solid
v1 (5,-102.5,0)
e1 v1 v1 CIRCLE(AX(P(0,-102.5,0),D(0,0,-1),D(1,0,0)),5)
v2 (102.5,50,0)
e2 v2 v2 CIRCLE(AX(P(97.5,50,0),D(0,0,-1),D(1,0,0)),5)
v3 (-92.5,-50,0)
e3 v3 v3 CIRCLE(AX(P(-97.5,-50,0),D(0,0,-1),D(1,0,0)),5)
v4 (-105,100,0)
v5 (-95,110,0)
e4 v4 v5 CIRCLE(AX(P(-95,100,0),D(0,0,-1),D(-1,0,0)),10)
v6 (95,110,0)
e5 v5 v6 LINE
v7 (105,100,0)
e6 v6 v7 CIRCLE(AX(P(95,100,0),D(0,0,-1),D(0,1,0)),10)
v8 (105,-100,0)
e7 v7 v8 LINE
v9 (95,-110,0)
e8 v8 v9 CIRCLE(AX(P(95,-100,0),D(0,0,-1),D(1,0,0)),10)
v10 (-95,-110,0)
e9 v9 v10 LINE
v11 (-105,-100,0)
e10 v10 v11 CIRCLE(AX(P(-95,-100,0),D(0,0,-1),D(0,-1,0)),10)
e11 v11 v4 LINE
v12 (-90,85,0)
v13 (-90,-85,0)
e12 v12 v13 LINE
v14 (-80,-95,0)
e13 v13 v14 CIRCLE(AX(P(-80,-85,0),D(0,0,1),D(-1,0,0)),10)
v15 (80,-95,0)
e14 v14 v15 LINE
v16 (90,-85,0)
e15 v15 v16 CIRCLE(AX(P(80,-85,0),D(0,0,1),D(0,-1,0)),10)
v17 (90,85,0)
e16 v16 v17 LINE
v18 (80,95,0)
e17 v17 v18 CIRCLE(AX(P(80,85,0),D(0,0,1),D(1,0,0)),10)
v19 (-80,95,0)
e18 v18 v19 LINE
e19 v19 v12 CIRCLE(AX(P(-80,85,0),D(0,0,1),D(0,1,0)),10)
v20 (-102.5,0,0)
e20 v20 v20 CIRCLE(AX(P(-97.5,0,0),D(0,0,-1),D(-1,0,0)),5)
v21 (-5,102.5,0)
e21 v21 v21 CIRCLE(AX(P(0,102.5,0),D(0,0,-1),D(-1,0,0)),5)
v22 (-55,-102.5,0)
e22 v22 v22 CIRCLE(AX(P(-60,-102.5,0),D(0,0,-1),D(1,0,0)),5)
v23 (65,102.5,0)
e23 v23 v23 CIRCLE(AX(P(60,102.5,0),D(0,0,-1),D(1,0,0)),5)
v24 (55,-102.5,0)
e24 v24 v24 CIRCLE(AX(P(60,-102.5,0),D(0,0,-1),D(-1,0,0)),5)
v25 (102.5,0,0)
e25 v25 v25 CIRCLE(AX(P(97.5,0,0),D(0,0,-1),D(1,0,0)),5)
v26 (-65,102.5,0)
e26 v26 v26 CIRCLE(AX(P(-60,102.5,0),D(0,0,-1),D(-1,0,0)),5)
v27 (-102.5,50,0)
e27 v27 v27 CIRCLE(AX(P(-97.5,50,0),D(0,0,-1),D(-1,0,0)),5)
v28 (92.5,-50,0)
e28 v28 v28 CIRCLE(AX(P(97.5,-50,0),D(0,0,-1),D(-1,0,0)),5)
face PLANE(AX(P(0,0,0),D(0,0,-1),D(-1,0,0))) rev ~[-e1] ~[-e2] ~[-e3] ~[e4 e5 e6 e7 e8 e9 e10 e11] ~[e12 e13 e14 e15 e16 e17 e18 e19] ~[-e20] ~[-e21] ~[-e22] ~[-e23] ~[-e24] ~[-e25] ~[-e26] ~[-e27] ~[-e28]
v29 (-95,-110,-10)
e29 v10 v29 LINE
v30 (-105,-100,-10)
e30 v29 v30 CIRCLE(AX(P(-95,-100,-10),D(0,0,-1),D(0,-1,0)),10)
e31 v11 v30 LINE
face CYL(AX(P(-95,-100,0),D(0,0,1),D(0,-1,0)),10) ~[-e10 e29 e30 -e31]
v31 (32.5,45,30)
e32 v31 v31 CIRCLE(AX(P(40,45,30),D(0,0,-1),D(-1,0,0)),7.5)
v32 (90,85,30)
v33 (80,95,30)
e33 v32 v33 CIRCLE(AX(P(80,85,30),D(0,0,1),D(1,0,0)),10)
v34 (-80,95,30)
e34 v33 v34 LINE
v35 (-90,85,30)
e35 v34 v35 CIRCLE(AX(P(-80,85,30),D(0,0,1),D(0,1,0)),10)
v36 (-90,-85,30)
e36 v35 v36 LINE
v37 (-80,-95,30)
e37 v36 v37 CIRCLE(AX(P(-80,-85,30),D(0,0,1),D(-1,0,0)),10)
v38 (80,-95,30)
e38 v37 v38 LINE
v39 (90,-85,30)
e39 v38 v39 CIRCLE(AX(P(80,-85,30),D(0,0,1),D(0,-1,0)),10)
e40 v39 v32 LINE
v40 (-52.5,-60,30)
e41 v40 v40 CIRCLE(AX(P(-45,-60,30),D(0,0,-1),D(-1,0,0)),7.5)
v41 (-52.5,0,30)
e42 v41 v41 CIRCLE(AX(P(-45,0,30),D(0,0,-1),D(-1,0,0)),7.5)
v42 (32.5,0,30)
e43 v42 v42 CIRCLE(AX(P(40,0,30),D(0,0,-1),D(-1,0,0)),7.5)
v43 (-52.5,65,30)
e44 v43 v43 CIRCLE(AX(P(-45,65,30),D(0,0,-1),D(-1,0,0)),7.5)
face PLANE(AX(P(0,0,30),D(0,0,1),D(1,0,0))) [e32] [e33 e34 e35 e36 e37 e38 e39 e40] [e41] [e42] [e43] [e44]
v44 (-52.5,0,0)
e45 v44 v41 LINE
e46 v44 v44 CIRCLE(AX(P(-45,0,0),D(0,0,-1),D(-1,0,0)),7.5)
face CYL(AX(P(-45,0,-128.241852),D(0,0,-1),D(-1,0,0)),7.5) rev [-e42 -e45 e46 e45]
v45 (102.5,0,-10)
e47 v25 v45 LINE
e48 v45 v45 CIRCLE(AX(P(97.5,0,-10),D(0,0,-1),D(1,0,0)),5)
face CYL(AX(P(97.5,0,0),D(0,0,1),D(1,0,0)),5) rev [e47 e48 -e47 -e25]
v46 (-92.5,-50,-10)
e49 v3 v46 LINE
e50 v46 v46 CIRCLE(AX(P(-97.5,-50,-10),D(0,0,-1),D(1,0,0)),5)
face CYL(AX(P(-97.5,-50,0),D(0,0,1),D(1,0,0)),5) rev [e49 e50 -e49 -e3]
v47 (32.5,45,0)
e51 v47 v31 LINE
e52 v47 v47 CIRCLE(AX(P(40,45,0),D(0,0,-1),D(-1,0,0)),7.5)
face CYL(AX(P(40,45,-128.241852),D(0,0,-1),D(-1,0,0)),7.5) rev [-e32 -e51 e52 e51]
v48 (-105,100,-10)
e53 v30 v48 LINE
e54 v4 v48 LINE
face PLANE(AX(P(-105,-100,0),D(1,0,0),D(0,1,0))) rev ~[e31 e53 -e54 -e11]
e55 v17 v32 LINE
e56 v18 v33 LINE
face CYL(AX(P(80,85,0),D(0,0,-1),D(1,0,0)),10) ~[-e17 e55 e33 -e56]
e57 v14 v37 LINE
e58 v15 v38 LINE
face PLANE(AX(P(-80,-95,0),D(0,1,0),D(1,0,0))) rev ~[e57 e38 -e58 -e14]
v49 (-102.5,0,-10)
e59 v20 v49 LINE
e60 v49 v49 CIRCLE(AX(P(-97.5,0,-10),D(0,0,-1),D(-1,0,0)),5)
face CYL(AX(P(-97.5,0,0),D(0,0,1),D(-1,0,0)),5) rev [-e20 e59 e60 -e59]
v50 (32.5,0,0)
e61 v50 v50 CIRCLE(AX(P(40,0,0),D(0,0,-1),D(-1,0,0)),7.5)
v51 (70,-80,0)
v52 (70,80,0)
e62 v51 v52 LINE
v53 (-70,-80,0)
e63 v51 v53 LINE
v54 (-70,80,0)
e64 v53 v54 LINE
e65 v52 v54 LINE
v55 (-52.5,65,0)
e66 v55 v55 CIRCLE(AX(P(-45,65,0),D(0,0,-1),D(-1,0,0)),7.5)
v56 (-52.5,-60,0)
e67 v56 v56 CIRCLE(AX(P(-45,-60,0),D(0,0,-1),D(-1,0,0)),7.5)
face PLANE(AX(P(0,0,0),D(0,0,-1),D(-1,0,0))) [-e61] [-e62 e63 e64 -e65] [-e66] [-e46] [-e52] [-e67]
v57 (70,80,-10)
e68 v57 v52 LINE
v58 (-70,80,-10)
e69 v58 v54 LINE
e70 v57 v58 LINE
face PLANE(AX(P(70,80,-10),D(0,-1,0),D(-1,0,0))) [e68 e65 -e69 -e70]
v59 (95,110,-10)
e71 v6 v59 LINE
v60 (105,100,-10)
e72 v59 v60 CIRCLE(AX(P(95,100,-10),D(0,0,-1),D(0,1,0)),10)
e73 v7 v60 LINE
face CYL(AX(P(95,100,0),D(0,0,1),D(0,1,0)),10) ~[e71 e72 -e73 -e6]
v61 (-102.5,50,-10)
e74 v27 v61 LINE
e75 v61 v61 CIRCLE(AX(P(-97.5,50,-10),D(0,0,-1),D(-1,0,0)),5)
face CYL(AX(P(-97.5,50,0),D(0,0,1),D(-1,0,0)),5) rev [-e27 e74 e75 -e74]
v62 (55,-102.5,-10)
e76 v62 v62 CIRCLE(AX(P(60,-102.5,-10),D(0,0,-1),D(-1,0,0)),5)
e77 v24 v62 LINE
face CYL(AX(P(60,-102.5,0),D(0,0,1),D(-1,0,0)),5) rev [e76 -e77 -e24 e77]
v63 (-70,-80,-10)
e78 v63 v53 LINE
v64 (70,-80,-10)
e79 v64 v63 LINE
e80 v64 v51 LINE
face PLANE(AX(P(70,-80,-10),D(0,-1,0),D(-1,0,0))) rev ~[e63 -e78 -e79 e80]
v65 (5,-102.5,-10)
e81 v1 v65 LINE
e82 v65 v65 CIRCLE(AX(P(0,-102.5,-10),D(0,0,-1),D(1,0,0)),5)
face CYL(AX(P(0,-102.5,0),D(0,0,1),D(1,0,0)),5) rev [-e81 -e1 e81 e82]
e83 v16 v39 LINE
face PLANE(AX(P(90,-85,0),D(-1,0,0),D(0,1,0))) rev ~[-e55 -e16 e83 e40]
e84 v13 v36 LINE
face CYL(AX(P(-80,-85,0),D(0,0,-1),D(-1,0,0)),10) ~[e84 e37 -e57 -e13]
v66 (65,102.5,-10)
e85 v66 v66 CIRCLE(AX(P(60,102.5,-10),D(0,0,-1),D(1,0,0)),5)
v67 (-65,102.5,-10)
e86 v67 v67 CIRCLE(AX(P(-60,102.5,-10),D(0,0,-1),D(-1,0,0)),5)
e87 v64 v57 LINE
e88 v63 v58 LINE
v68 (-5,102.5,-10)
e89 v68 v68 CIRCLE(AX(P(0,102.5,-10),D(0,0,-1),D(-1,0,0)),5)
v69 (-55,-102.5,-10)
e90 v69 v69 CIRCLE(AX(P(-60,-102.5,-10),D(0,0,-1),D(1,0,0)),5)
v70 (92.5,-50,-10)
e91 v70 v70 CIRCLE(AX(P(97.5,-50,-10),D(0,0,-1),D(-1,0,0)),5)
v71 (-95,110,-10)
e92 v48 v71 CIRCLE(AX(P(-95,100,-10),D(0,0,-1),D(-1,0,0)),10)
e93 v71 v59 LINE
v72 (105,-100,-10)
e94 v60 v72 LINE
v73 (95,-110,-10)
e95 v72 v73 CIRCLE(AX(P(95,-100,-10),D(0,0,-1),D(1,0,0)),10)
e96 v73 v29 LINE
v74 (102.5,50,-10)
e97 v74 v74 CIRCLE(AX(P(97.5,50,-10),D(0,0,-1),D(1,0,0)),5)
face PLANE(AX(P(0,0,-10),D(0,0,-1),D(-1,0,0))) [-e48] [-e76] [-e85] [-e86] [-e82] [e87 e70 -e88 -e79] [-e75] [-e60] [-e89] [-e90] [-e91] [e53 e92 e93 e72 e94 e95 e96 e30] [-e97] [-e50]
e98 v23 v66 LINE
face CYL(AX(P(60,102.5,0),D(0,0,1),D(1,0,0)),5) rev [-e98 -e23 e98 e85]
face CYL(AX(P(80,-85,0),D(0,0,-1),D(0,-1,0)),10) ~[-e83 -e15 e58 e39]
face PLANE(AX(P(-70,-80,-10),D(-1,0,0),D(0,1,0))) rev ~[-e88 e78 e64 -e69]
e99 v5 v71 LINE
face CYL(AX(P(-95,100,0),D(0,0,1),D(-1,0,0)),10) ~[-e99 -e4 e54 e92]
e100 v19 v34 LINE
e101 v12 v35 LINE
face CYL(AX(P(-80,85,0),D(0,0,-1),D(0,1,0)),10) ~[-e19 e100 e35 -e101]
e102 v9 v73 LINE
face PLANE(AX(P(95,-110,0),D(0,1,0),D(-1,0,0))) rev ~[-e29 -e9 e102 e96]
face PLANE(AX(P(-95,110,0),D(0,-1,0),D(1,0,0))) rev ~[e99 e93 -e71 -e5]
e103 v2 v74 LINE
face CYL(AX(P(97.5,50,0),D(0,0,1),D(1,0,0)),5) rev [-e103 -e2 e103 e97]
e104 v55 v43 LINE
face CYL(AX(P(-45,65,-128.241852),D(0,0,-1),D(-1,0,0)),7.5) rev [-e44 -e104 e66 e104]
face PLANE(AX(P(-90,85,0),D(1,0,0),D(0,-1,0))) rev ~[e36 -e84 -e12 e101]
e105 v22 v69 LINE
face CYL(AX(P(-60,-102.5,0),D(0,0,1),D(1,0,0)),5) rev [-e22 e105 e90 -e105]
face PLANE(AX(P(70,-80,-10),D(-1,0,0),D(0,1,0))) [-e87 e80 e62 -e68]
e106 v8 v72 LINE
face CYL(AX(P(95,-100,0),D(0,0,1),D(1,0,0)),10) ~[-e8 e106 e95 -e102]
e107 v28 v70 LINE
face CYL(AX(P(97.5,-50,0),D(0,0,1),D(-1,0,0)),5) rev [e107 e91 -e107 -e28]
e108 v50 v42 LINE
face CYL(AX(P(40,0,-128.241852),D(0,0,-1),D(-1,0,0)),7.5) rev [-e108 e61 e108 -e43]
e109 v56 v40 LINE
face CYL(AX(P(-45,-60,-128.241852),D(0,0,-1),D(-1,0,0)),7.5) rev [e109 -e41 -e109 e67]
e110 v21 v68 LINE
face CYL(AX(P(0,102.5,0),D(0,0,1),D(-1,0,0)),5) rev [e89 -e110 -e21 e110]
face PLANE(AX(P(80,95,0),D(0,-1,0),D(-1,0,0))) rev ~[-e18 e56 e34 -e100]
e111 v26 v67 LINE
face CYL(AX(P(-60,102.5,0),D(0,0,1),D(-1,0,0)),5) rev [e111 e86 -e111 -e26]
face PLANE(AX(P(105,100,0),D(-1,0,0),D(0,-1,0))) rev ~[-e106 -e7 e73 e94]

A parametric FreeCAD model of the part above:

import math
import FreeCAD as App
import Part
import Sketcher
from FreeCAD import Vector
Q = App.Units.Quantity

doc = App.newDocument("Part")
params = doc.addObject("Spreadsheet::Sheet", "Params")
for row, (alias, value) in enumerate([
    ("sketch1_radius", "10 mm"),
    ("sketch1_width", "160 mm"),
    ("sketch1_height", "170 mm"),
    ("pad1_length", "30 mm"),
    ("sketch2_diameter", "10 mm"),
    ("sketch2_radius", "10 mm"),
    ("sketch2_width", "190 mm"),
    ("sketch2_height", "200 mm"),
    ("pad2_length", "10 mm"),
    ("sketch3_width", "140 mm"),
    ("sketch3_height", "160 mm"),
    ("pocket1_length", "10 mm"),
    ("sketch4_diameter", "15 mm"),
], start=1):
    params.set(f"A{row}", alias)
    params.set(f"B{row}", "=" + value)
    params.setAlias(f"B{row}", alias)

body = doc.addObject("PartDesign::Body", "Body")

# Sketch on XY plane
sketch1 = body.newObject("Sketcher::SketchObject", "Sketch")
sketch1.AttachmentSupport = (doc.getObject("XY_Plane"), [""])
sketch1.MapMode = "FlatFace"
sketch1.addGeometry([
    Part.LineSegment(Vector(-80, -95, 0), Vector(80, -95, 0)),  # 0
    Part.ArcOfCircle(Part.Circle(Vector(80, -85, 0), Vector(0, 0, 1), 10), math.radians(-90), math.radians(0)),  # 1
    Part.LineSegment(Vector(90, -85, 0), Vector(90, 85, 0)),  # 2
    Part.ArcOfCircle(Part.Circle(Vector(80, 85, 0), Vector(0, 0, 1), 10), math.radians(0), math.radians(90)),  # 3
    Part.LineSegment(Vector(80, 95, 0), Vector(-80, 95, 0)),  # 4
    Part.ArcOfCircle(Part.Circle(Vector(-80, 85, 0), Vector(0, 0, 1), 10), math.radians(90), math.radians(180)),  # 5
    Part.LineSegment(Vector(-90, 85, 0), Vector(-90, -85, 0)),  # 6
    Part.ArcOfCircle(Part.Circle(Vector(-80, -85, 0), Vector(0, 0, 1), 10), math.radians(180), math.radians(270)),  # 7
], False)
sketch1.addConstraint([
    Sketcher.Constraint("Tangent", 0, 2, 1, 1),
    Sketcher.Constraint("Tangent", 1, 2, 2, 1),
    Sketcher.Constraint("Tangent", 2, 2, 3, 1),
    Sketcher.Constraint("Tangent", 3, 2, 4, 1),
    Sketcher.Constraint("Tangent", 4, 2, 5, 1),
    Sketcher.Constraint("Tangent", 5, 2, 6, 1),
    Sketcher.Constraint("Tangent", 6, 2, 7, 1),
    Sketcher.Constraint("Tangent", 7, 2, 0, 1),
    Sketcher.Constraint("Horizontal", 0),
    Sketcher.Constraint("Vertical", 2),
    Sketcher.Constraint("Horizontal", 4),
    Sketcher.Constraint("Vertical", 6),
    Sketcher.Constraint("Equal", 1, 3),
    Sketcher.Constraint("Equal", 3, 5),
    Sketcher.Constraint("Equal", 5, 7),
    Sketcher.Constraint("Symmetric", 1, 3, 5, 3, -1, 1),
    Sketcher.Constraint("Radius", 1, Q("10 mm")),
    Sketcher.Constraint("DistanceX", 0, 1, 0, 2, Q("160 mm")),
    Sketcher.Constraint("DistanceY", 2, 1, 2, 2, Q("170 mm")),
])
sketch1.setExpression("Constraints[16]", "Params.sketch1_radius")
sketch1.setExpression("Constraints[17]", "Params.sketch1_width")
sketch1.setExpression("Constraints[18]", "Params.sketch1_height")
pad1 = body.newObject("PartDesign::Pad", "Pad")
pad1.Profile = sketch1
pad1.setExpression("Length", "Params.pad1_length")

# Sketch on XY plane
sketch2 = body.newObject("Sketcher::SketchObject", "Sketch001")
sketch2.AttachmentSupport = (doc.getObject("XY_Plane"), [""])
sketch2.MapMode = "FlatFace"
sketch2.addGeometry([
    Part.LineSegment(Vector(95, -110, 0), Vector(-95, -110, 0)),  # 0
    Part.ArcOfCircle(Part.Circle(Vector(-95, -100, 0), Vector(0, 0, 1), 10), math.radians(180), math.radians(270)),  # 1
    Part.LineSegment(Vector(-105, -100, 0), Vector(-105, 100, 0)),  # 2
    Part.ArcOfCircle(Part.Circle(Vector(-95, 100, 0), Vector(0, 0, 1), 10), math.radians(90), math.radians(180)),  # 3
    Part.LineSegment(Vector(-95, 110, 0), Vector(95, 110, 0)),  # 4
    Part.ArcOfCircle(Part.Circle(Vector(95, 100, 0), Vector(0, 0, 1), 10), math.radians(0), math.radians(90)),  # 5
    Part.LineSegment(Vector(105, 100, 0), Vector(105, -100, 0)),  # 6
    Part.ArcOfCircle(Part.Circle(Vector(95, -100, 0), Vector(0, 0, 1), 10), math.radians(-90), math.radians(0)),  # 7
    Part.Circle(Vector(60, -102, 0), Vector(0, 0, 1), 5),  # 8
    Part.Circle(Vector(98, -50, 0), Vector(0, 0, 1), 5),  # 9
    Part.Circle(Vector(0, -102, 0), Vector(0, 0, 1), 5),  # 10
    Part.Circle(Vector(-60, -102, 0), Vector(0, 0, 1), 5),  # 11
    Part.Circle(Vector(-98, -50, 0), Vector(0, 0, 1), 5),  # 12
    Part.Circle(Vector(98, 0, 0), Vector(0, 0, 1), 5),  # 13
    Part.Circle(Vector(98, 50, 0), Vector(0, 0, 1), 5),  # 14
    Part.Circle(Vector(60, 102, 0), Vector(0, 0, 1), 5),  # 15
    Part.Circle(Vector(-98, 0, 0), Vector(0, 0, 1), 5),  # 16
    Part.Circle(Vector(-98, 50, 0), Vector(0, 0, 1), 5),  # 17
    Part.Circle(Vector(0, 102, 0), Vector(0, 0, 1), 5),  # 18
    Part.Circle(Vector(-60, 102, 0), Vector(0, 0, 1), 5),  # 19
], False)
sketch2.addConstraint([
    Sketcher.Constraint("Tangent", 0, 2, 1, 2),
    Sketcher.Constraint("Tangent", 1, 1, 2, 1),
    Sketcher.Constraint("Tangent", 2, 2, 3, 2),
    Sketcher.Constraint("Tangent", 3, 1, 4, 1),
    Sketcher.Constraint("Tangent", 4, 2, 5, 2),
    Sketcher.Constraint("Tangent", 5, 1, 6, 1),
    Sketcher.Constraint("Tangent", 6, 2, 7, 2),
    Sketcher.Constraint("Tangent", 7, 1, 0, 1),
    Sketcher.Constraint("Horizontal", 0),
    Sketcher.Constraint("Vertical", 2),
    Sketcher.Constraint("Horizontal", 4),
    Sketcher.Constraint("Vertical", 6),
    Sketcher.Constraint("Equal", 1, 3),
    Sketcher.Constraint("Equal", 3, 5),
    Sketcher.Constraint("Equal", 5, 7),
    Sketcher.Constraint("Equal", 8, 9),
    Sketcher.Constraint("Equal", 9, 10),
    Sketcher.Constraint("Equal", 10, 11),
    Sketcher.Constraint("Equal", 11, 12),
    Sketcher.Constraint("Equal", 12, 13),
    Sketcher.Constraint("Equal", 13, 14),
    Sketcher.Constraint("Equal", 14, 15),
    Sketcher.Constraint("Equal", 15, 16),
    Sketcher.Constraint("Equal", 16, 17),
    Sketcher.Constraint("Equal", 17, 18),
    Sketcher.Constraint("Equal", 18, 19),
    Sketcher.Constraint("Symmetric", 1, 3, 5, 3, -1, 1),
    Sketcher.Constraint("Symmetric", 12, 3, 14, 3, -1, 1),
    Sketcher.Constraint("Symmetric", 11, 3, 15, 3, -1, 1),
    Sketcher.Constraint("Symmetric", 13, 3, 16, 3, -1, 1),
    Sketcher.Constraint("Symmetric", 9, 3, 17, 3, -1, 1),
    Sketcher.Constraint("Symmetric", 10, 3, 18, 3, -1, 1),
    Sketcher.Constraint("Symmetric", 8, 3, 19, 3, -1, 1),
    Sketcher.Constraint("Symmetric", 8, 3, 11, 3, -2),
    Sketcher.Constraint("Symmetric", 9, 3, 12, 3, -2),
    Sketcher.Constraint("PointOnObject", 10, 3, -2),
    Sketcher.Constraint("PointOnObject", 13, 3, -1),
    Sketcher.Constraint("Horizontal", 8, 3, 10, 3),
    Sketcher.Constraint("Vertical", 9, 3, 13, 3),
    Sketcher.Constraint("Diameter", 8, Q("10 mm")),
    Sketcher.Constraint("Radius", 1, Q("10 mm")),
    Sketcher.Constraint("DistanceX", 0, 2, 0, 1, Q("190 mm")),
    Sketcher.Constraint("DistanceY", 2, 1, 2, 2, Q("200 mm")),
    Sketcher.Constraint("DistanceX", -1, 1, 8, 3, Q("60 mm")),
    Sketcher.Constraint("DistanceY", 9, 3, -1, 1, Q("50 mm")),
    Sketcher.Constraint("DistanceY", 8, 3, -1, 1, Q("102.5 mm")),
    Sketcher.Constraint("DistanceX", -1, 1, 9, 3, Q("97.5 mm")),
])
sketch2.setExpression("Constraints[39]", "Params.sketch2_diameter")
sketch2.setExpression("Constraints[40]", "Params.sketch2_radius")
sketch2.setExpression("Constraints[41]", "Params.sketch2_width")
sketch2.setExpression("Constraints[42]", "Params.sketch2_height")
pad2 = body.newObject("PartDesign::Pad", "Pad001")
pad2.Profile = sketch2
pad2.setExpression("Length", "Params.pad2_length")
pad2.Reversed = True

# Sketch on XY plane
sketch3 = body.newObject("Sketcher::SketchObject", "Sketch002")
sketch3.AttachmentSupport = (doc.getObject("XY_Plane"), [""])
sketch3.MapMode = "FlatFace"
sketch3.AttachmentOffset = App.Placement(Vector(0, 0, -10), App.Rotation())
sketch3.addGeometry([
    Part.LineSegment(Vector(70, 80, 0), Vector(70, -80, 0)),
    Part.LineSegment(Vector(70, -80, 0), Vector(-70, -80, 0)),
    Part.LineSegment(Vector(-70, -80, 0), Vector(-70, 80, 0)),
    Part.LineSegment(Vector(-70, 80, 0), Vector(70, 80, 0)),
], False)
sketch3.addConstraint([
    Sketcher.Constraint("Coincident", 0, 2, 1, 1),
    Sketcher.Constraint("Coincident", 1, 2, 2, 1),
    Sketcher.Constraint("Coincident", 2, 2, 3, 1),
    Sketcher.Constraint("Coincident", 3, 2, 0, 1),
    Sketcher.Constraint("Vertical", 0),
    Sketcher.Constraint("Horizontal", 1),
    Sketcher.Constraint("Vertical", 2),
    Sketcher.Constraint("Horizontal", 3),
    Sketcher.Constraint("Symmetric", 0, 2, 2, 2, -1, 1),
    Sketcher.Constraint("DistanceX", 1, 2, 1, 1, Q("140 mm")),
    Sketcher.Constraint("DistanceY", 0, 2, 0, 1, Q("160 mm")),
])
sketch3.setExpression("Constraints[9]", "Params.sketch3_width")
sketch3.setExpression("Constraints[10]", "Params.sketch3_height")
pocket1 = body.newObject("PartDesign::Pocket", "Pocket")
pocket1.Profile = sketch3
pocket1.setExpression("Length", "Params.pocket1_length")
pocket1.Reversed = True

# Sketch on XY plane
sketch4 = body.newObject("Sketcher::SketchObject", "Sketch003")
sketch4.AttachmentSupport = (doc.getObject("XY_Plane"), [""])
sketch4.MapMode = "FlatFace"
sketch4.AttachmentOffset = App.Placement(Vector(0, 0, 30), App.Rotation())
sketch4.addGeometry([
    Part.Circle(Vector(40, 45, 0), Vector(0, 0, 1), 8),  # 0
    Part.Circle(Vector(40, 0, 0), Vector(0, 0, 1), 8),  # 1
    Part.Circle(Vector(-45, 0, 0), Vector(0, 0, 1), 8),  # 2
    Part.Circle(Vector(-45, 65, 0), Vector(0, 0, 1), 8),  # 3
    Part.Circle(Vector(-45, -60, 0), Vector(0, 0, 1), 8),  # 4
], False)
sketch4.addConstraint([
    Sketcher.Constraint("Equal", 0, 1),
    Sketcher.Constraint("Equal", 1, 2),
    Sketcher.Constraint("Equal", 2, 3),
    Sketcher.Constraint("Equal", 3, 4),
    Sketcher.Constraint("PointOnObject", 1, 3, -1),
    Sketcher.Constraint("PointOnObject", 2, 3, -1),
    Sketcher.Constraint("Vertical", 0, 3, 1, 3),
    Sketcher.Constraint("Vertical", 2, 3, 3, 3),
    Sketcher.Constraint("Vertical", 3, 3, 4, 3),
    Sketcher.Constraint("Diameter", 0, Q("15 mm")),
    Sketcher.Constraint("DistanceX", -1, 1, 0, 3, Q("40 mm")),
    Sketcher.Constraint("DistanceY", -1, 1, 0, 3, Q("45 mm")),
    Sketcher.Constraint("DistanceX", 2, 3, -1, 1, Q("45 mm")),
    Sketcher.Constraint("DistanceY", -1, 1, 3, 3, Q("65 mm")),
    Sketcher.Constraint("DistanceY", 4, 3, -1, 1, Q("60 mm")),
])
sketch4.setExpression("Constraints[9]", "Params.sketch4_diameter")
pocket2 = body.newObject("PartDesign::Pocket", "Pocket001")
pocket2.Profile = sketch4
pocket2.Type = "ThroughAll"
pocket2.Midplane = True

doc.recompute()
